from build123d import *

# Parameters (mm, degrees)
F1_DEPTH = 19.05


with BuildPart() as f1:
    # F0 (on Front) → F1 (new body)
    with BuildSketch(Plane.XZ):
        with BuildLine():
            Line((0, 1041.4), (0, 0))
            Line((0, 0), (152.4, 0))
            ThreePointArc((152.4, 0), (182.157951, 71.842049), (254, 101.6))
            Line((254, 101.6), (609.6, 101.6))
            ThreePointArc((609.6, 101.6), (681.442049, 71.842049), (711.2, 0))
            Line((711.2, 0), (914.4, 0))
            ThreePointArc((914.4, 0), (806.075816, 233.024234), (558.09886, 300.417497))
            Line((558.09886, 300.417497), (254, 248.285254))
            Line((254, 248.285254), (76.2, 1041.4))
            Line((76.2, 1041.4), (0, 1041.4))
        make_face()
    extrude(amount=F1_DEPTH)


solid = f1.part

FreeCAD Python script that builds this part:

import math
import FreeCAD as App
import Part
import Sketcher
Q = App.Units.Quantity

doc = App.newDocument("Part")
params = doc.addObject("Spreadsheet::Sheet", "Params")
for row, (alias, value) in enumerate([
    ("sketch1_radius", "4 in"),
    ("sketch1_radius2", "12 in"),
    ("sketch1_width", "6 in"),
    ("sketch1_width2", "14 in"),
    ("sketch1_width3", "3 in"),
    ("pad1_length", "0.75 in"),
], start=1):
    params.set(f"A{row}", alias)
    params.set(f"B{row}", "=" + value)
    params.setAlias(f"B{row}", alias)

body = doc.addObject("PartDesign::Body", "Body")

# Sketch on XZ plane
sketch1 = body.newObject("Sketcher::SketchObject", "Sketch")
sketch1.AttachmentSupport = (doc.getObject("XZ_Plane"), [""])
sketch1.MapMode = "FlatFace"
sketch1.addGeometry(Part.LineSegment(App.Vector(0, 1041, 0), App.Vector(0, 0, 0)), False)
sketch1.addGeometry(Part.LineSegment(App.Vector(0, 0, 0), App.Vector(152, 0, 0)), False)
sketch1.addGeometry(Part.ArcOfCircle(Part.Circle(App.Vector(254, 0, 0), App.Vector(0, 0, 1), 102), math.radians(90), math.radians(180)), False)
sketch1.addGeometry(Part.LineSegment(App.Vector(254, 102, 0), App.Vector(610, 102, 0)), False)
sketch1.addGeometry(Part.ArcOfCircle(Part.Circle(App.Vector(610, 0, 0), App.Vector(0, 0, 1), 102), math.radians(0), math.radians(90)), False)
sketch1.addGeometry(Part.LineSegment(App.Vector(711, 0, 0), App.Vector(914, 0, 0)), False)
sketch1.addGeometry(Part.ArcOfCircle(Part.Circle(App.Vector(610, 0, 0), App.Vector(0, 0, 1), 305), math.radians(0), math.radians(100)), False)
sketch1.addGeometry(Part.LineSegment(App.Vector(558, 300, 0), App.Vector(254, 248, 0)), False)
sketch1.addGeometry(Part.LineSegment(App.Vector(254, 248, 0), App.Vector(76, 1041, 0)), False)
sketch1.addGeometry(Part.LineSegment(App.Vector(76, 1041, 0), App.Vector(0, 1041, 0)), False)
sketch1.addConstraint(Sketcher.Constraint("Coincident", 0, 2, 1, 1))
sketch1.addConstraint(Sketcher.Constraint("Coincident", 1, 2, 2, 2))
sketch1.addConstraint(Sketcher.Constraint("Tangent", 2, 1, 3, 1))
sketch1.addConstraint(Sketcher.Constraint("Tangent", 3, 2, 4, 2))
sketch1.addConstraint(Sketcher.Constraint("Coincident", 4, 1, 5, 1))
sketch1.addConstraint(Sketcher.Constraint("Coincident", 5, 2, 6, 1))
sketch1.addConstraint(Sketcher.Constraint("Tangent", 6, 2, 7, 1))
sketch1.addConstraint(Sketcher.Constraint("Coincident", 7, 2, 8, 1))
sketch1.addConstraint(Sketcher.Constraint("Coincident", 8, 2, 9, 1))
sketch1.addConstraint(Sketcher.Constraint("Coincident", 9, 2, 0, 1))
sketch1.addConstraint(Sketcher.Constraint("Vertical", 0))
sketch1.addConstraint(Sketcher.Constraint("Horizontal", 1))
sketch1.addConstraint(Sketcher.Constraint("Horizontal", 3))
sketch1.addConstraint(Sketcher.Constraint("Horizontal", 5))
sketch1.addConstraint(Sketcher.Constraint("Horizontal", 9))
sketch1.addConstraint(Sketcher.Constraint("Coincident", 0, 2, -1, 1))
sketch1.addConstraint(Sketcher.Constraint("Coincident", 6, 3, 4, 3))
sketch1.addConstraint(Sketcher.Constraint("Equal", 2, 4))
sketch1.addConstraint(Sketcher.Constraint("PointOnObject", 2, 3, -1))
sketch1.addConstraint(Sketcher.Constraint("PointOnObject", 4, 1, -1))
sketch1.addConstraint(Sketcher.Constraint("Vertical", 2, 1, 7, 2))
sketch1.addConstraint(Sketcher.Constraint("Radius", 2, Q("4 in")))
sketch1.addConstraint(Sketcher.Constraint("Radius", 6, Q("12 in")))
sketch1.addConstraint(Sketcher.Constraint("DistanceX", 1, 1, 1, 2, Q("6 in")))
sketch1.addConstraint(Sketcher.Constraint("DistanceX", 3, 1, 3, 2, Q("14 in")))
sketch1.addConstraint(Sketcher.Constraint("DistanceX", 9, 2, 9, 1, Q("3 in")))
sketch1.addConstraint(Sketcher.Constraint("DistanceY", 0, 2, 0, 1, Q("41 in")))
sketch1.addConstraint(Sketcher.Constraint("Distance", 8, Q("32 in")))
sketch1.setExpression("Constraints[21]", "Params.sketch1_radius")
sketch1.setExpression("Constraints[22]", "Params.sketch1_radius2")
sketch1.setExpression("Constraints[23]", "Params.sketch1_width")
sketch1.setExpression("Constraints[24]", "Params.sketch1_width2")
sketch1.setExpression("Constraints[25]", "Params.sketch1_width3")
pad1 = body.newObject("PartDesign::Pad", "Pad")
pad1.Profile = sketch1
pad1.setExpression("Length", "Params.pad1_length")

doc.recompute()
